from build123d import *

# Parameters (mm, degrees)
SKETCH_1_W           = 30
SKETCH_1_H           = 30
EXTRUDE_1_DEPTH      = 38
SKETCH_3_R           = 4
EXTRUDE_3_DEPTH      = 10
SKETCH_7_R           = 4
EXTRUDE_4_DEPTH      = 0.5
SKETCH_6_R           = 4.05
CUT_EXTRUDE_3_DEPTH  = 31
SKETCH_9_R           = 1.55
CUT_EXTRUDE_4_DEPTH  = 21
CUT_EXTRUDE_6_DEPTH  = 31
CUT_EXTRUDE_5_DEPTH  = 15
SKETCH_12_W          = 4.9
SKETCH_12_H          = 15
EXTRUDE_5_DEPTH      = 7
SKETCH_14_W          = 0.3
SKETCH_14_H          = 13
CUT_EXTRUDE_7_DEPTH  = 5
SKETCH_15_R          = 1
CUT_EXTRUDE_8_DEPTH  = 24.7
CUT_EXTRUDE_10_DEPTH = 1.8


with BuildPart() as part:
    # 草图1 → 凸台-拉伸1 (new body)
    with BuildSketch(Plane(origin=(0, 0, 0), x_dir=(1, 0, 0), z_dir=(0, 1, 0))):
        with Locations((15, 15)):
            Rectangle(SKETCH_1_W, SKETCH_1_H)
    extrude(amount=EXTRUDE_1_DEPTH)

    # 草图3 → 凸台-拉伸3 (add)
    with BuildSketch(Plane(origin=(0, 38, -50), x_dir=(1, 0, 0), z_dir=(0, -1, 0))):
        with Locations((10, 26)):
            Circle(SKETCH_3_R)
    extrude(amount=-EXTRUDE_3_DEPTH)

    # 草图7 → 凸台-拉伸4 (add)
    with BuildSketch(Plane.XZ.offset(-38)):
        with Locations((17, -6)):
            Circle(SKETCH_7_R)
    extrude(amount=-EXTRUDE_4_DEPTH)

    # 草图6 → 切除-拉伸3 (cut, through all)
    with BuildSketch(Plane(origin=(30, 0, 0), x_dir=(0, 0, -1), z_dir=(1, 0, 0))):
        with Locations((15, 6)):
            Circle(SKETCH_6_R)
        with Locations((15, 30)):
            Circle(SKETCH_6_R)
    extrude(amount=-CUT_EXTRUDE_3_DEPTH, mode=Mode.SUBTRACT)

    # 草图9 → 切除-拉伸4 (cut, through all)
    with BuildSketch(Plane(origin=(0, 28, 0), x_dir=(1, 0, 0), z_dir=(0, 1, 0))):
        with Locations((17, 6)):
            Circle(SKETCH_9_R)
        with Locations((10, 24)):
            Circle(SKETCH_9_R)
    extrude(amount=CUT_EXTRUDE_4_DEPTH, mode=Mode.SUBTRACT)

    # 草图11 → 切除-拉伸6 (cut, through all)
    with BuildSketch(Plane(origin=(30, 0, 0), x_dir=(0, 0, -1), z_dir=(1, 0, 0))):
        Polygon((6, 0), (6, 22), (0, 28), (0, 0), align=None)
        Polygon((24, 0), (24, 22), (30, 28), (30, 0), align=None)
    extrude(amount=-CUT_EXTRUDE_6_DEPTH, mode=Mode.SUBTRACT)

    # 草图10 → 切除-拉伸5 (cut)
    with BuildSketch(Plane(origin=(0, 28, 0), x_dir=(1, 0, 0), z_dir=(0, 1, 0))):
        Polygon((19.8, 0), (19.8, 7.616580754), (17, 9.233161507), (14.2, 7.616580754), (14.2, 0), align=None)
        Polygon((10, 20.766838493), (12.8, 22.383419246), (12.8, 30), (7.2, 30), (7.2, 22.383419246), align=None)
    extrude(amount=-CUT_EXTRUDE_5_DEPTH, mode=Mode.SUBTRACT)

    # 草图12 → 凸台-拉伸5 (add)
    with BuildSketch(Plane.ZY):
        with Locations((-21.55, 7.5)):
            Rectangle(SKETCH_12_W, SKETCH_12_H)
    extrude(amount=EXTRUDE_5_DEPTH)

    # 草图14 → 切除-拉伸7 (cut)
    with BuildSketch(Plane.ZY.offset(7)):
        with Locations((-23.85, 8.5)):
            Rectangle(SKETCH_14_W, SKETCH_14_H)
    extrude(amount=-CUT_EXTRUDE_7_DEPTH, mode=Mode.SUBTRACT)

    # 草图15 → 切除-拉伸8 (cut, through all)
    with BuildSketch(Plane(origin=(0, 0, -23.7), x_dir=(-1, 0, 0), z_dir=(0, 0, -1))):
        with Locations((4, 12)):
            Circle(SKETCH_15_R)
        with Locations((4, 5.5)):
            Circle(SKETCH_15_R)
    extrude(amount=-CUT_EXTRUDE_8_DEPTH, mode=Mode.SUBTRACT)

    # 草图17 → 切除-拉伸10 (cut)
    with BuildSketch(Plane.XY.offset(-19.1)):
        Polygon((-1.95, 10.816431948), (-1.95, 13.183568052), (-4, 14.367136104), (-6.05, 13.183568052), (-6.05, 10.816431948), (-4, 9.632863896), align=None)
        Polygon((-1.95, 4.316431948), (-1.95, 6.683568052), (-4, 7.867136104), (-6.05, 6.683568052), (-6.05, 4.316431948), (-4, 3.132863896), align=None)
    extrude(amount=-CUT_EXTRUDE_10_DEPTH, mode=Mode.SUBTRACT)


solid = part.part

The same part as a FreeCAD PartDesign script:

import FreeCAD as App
import Part
import Sketcher

V = App.Vector
Q = App.Units.Quantity


def add_polygon(sketch, points):
    """Adds a closed chain of lines whose ends are joined by coincident constraints."""
    first, n = sketch.GeometryCount, len(points)
    for a, b in zip(points, points[1:] + points[:1]):
        sketch.addGeometry(Part.LineSegment(App.Vector(*a, 0), App.Vector(*b, 0)), False)
    for i in range(n):
        sketch.addConstraint(Sketcher.Constraint("Coincident", first + i, 2, first + (i + 1) % n, 1))

doc = App.newDocument("Part")
body = doc.addObject("PartDesign::Body", "Body")

# Sketch on XZ plane
sketch1 = body.newObject("Sketcher::SketchObject", "Sketch")
sketch1.AttachmentSupport = (doc.getObject("XZ_Plane"), [""])
sketch1.MapMode = "FlatFace"
add_polygon(sketch1, [(0, -30), (0, 0), (30, 0), (30, -30)])  # lines 0-3
sketch1.addConstraint(Sketcher.Constraint("Vertical", 0))
sketch1.addConstraint(Sketcher.Constraint("Horizontal", 1))
sketch1.addConstraint(Sketcher.Constraint("Vertical", 2))
sketch1.addConstraint(Sketcher.Constraint("Horizontal", 3))
sketch1.addConstraint(Sketcher.Constraint("Coincident", 0, 2, -1, 1))
sketch1.addConstraint(Sketcher.Constraint("Equal", 3, 0))
sketch1.addConstraint(Sketcher.Constraint("DistanceX", 1, 1, 1, 2, Q("30 mm")))
pad1 = body.newObject("PartDesign::Pad", "Pad")
pad1.Profile = sketch1
pad1.Length = 38
pad1.Reversed = True

# Sketch on XZ plane
sketch2 = body.newObject("Sketcher::SketchObject", "Sketch001")
sketch2.AttachmentSupport = (doc.getObject("XZ_Plane"), [""])
sketch2.MapMode = "FlatFace"
sketch2.AttachmentOffset = App.Placement(V(0, 0, -38), App.Rotation())
sketch2.addGeometry(Part.Circle(V(10, -24, 0), V(0, 0, 1), 4), False)
sketch2.addConstraint(Sketcher.Constraint("Diameter", 0, Q("8 mm")))
sketch2.addConstraint(Sketcher.Constraint("DistanceX", -1, 1, 0, 3, Q("10 mm")))
sketch2.addConstraint(Sketcher.Constraint("DistanceY", 0, 3, -1, 1, Q("24 mm")))
pad2 = body.newObject("PartDesign::Pad", "Pad001")
pad2.Profile = sketch2
pad2.Length = 10
pad2.Reversed = True

# Sketch on XZ plane
sketch3 = body.newObject("Sketcher::SketchObject", "Sketch002")
sketch3.AttachmentSupport = (doc.getObject("XZ_Plane"), [""])
sketch3.MapMode = "FlatFace"
sketch3.AttachmentOffset = App.Placement(V(0, 0, -38), App.Rotation())
sketch3.addGeometry(Part.Circle(V(17, -6, 0), V(0, 0, 1), 4), False)
sketch3.addConstraint(Sketcher.Constraint("Diameter", 0, Q("8 mm")))
sketch3.addConstraint(Sketcher.Constraint("DistanceX", -1, 1, 0, 3, Q("17 mm")))
sketch3.addConstraint(Sketcher.Constraint("DistanceY", 0, 3, -1, 1, Q("6 mm")))
pad3 = body.newObject("PartDesign::Pad", "Pad002")
pad3.Profile = sketch3
pad3.Length = 0.5
pad3.Reversed = True

# Sketch on YZ plane
sketch4 = body.newObject("Sketcher::SketchObject", "Sketch003")
sketch4.AttachmentSupport = (doc.getObject("YZ_Plane"), [""])
sketch4.MapMode = "FlatFace"
sketch4.AttachmentOffset = App.Placement(V(0, 0, 30), App.Rotation())
sketch4.addGeometry(Part.Circle(V(6, -15, 0), V(0, 0, 1), 4.05), False)
sketch4.addGeometry(Part.Circle(V(30, -15, 0), V(0, 0, 1), 4.05), False)
sketch4.addConstraint(Sketcher.Constraint("Equal", 0, 1))
sketch4.addConstraint(Sketcher.Constraint("Horizontal", 0, 3, 1, 3))
sketch4.addConstraint(Sketcher.Constraint("Diameter", 0, Q("8.1 mm")))
sketch4.addConstraint(Sketcher.Constraint("DistanceX", -1, 1, 0, 3, Q("6 mm")))
sketch4.addConstraint(Sketcher.Constraint("DistanceY", 0, 3, -1, 1, Q("15 mm")))
sketch4.addConstraint(Sketcher.Constraint("DistanceX", -1, 1, 1, 3, Q("30 mm")))
pocket1 = body.newObject("PartDesign::Pocket", "Pocket")
pocket1.Profile = sketch4
pocket1.Type = "ThroughAll"

# Sketch on XZ plane
sketch5 = body.newObject("Sketcher::SketchObject", "Sketch004")
sketch5.AttachmentSupport = (doc.getObject("XZ_Plane"), [""])
sketch5.MapMode = "FlatFace"
sketch5.AttachmentOffset = App.Placement(V(0, 0, -28), App.Rotation())
sketch5.addGeometry(Part.Circle(V(17, -6, 0), V(0, 0, 1), 1.55), False)
sketch5.addGeometry(Part.Circle(V(10, -24, 0), V(0, 0, 1), 1.55), False)
sketch5.addConstraint(Sketcher.Constraint("Equal", 0, 1))
sketch5.addConstraint(Sketcher.Constraint("Diameter", 0, Q("3.1 mm")))
sketch5.addConstraint(Sketcher.Constraint("DistanceX", -1, 1, 0, 3, Q("17 mm")))
sketch5.addConstraint(Sketcher.Constraint("DistanceY", 0, 3, -1, 1, Q("6 mm")))
sketch5.addConstraint(Sketcher.Constraint("DistanceX", -1, 1, 1, 3, Q("10 mm")))
sketch5.addConstraint(Sketcher.Constraint("DistanceY", 1, 3, -1, 1, Q("24 mm")))
pocket2 = body.newObject("PartDesign::Pocket", "Pocket001")
pocket2.Profile = sketch5
pocket2.Type = "ThroughAll"

# Sketch on YZ plane
sketch6 = body.newObject("Sketcher::SketchObject", "Sketch005")
sketch6.AttachmentSupport = (doc.getObject("YZ_Plane"), [""])
sketch6.MapMode = "FlatFace"
sketch6.AttachmentOffset = App.Placement(V(0, 0, 30), App.Rotation())
add_polygon(sketch6, [(0, -6), (22, -6), (28, 0), (0, 0)])  # lines 0-3
add_polygon(sketch6, [(22, -24), (0, -24), (0, -30), (28, -30)])  # lines 4-7
sketch6.addConstraint(Sketcher.Constraint("Horizontal", 0))
sketch6.addConstraint(Sketcher.Constraint("Horizontal", 2))
sketch6.addConstraint(Sketcher.Constraint("Vertical", 3))
sketch6.addConstraint(Sketcher.Constraint("Horizontal", 4))
sketch6.addConstraint(Sketcher.Constraint("Vertical", 5))
sketch6.addConstraint(Sketcher.Constraint("Horizontal", 6))
sketch6.addConstraint(Sketcher.Constraint("Coincident", 2, 2, -1, 1))
sketch6.addConstraint(Sketcher.Constraint("PointOnObject", 4, 2, -2))
sketch6.addConstraint(Sketcher.Constraint("Perpendicular", 1, 7))
sketch6.addConstraint(Sketcher.Constraint("Vertical", 1, 2, 6, 2))
sketch6.addConstraint(Sketcher.Constraint("Vertical", 0, 2, 7, 2))
sketch6.addConstraint(Sketcher.Constraint("Equal", 3, 5))
sketch6.addConstraint(Sketcher.Constraint("DistanceX", 0, 1, 0, 2, Q("22 mm")))
sketch6.addConstraint(Sketcher.Constraint("DistanceX", 2, 2, 2, 1, Q("28 mm")))
sketch6.addConstraint(Sketcher.Constraint("DistanceY", 4, 2, -1, 1, Q("24 mm")))
pocket3 = body.newObject("PartDesign::Pocket", "Pocket002")
pocket3.Profile = sketch6
pocket3.Type = "ThroughAll"

# Sketch on XZ plane
sketch7 = body.newObject("Sketcher::SketchObject", "Sketch006")
sketch7.AttachmentSupport = (doc.getObject("XZ_Plane"), [""])
sketch7.MapMode = "FlatFace"
sketch7.AttachmentOffset = App.Placement(V(0, 0, -28), App.Rotation())
add_polygon(sketch7, [(19.8, 0), (19.8, -7.616581), (17, -9.233162), (14.2, -7.616581), (14.2, 0)])  # lines 0-4
add_polygon(sketch7, [(10, -20.766838), (12.8, -22.383419), (12.8, -30), (7.2, -30), (7.2, -22.383419)])  # lines 5-9
sketch7.addConstraint(Sketcher.Constraint("Vertical", 0))
sketch7.addConstraint(Sketcher.Constraint("Vertical", 3))
sketch7.addConstraint(Sketcher.Constraint("Horizontal", 4))
sketch7.addConstraint(Sketcher.Constraint("Vertical", 6))
sketch7.addConstraint(Sketcher.Constraint("Horizontal", 7))
sketch7.addConstraint(Sketcher.Constraint("Vertical", 8))
sketch7.addConstraint(Sketcher.Constraint("PointOnObject", 3, 2, -1))
sketch7.addConstraint(Sketcher.Constraint("Parallel", 2, 5))
sketch7.addConstraint(Sketcher.Constraint("Parallel", 1, 9))
sketch7.addConstraint(Sketcher.Constraint("Horizontal", 0, 2, 2, 2))
sketch7.addConstraint(Sketcher.Constraint("Horizontal", 5, 2, 8, 2))
sketch7.addConstraint(Sketcher.Constraint("Equal", 4, 7))
sketch7.addConstraint(Sketcher.Constraint("Equal", 3, 6))
sketch7.addConstraint(Sketcher.Constraint("Equal", 1, 2))
sketch7.addConstraint(Sketcher.Constraint("Angle", 1, Q("-150 deg")))
sketch7.addConstraint(Sketcher.Constraint("DistanceX", 4, 1, 4, 2, Q("5.6 mm")))
sketch7.addConstraint(Sketcher.Constraint("DistanceX", -1, 1, 1, 2, Q("17 mm")))
sketch7.addConstraint(Sketcher.Constraint("DistanceY", 6, 2, -1, 1, Q("30 mm")))
sketch7.addConstraint(Sketcher.Constraint("DistanceX", -1, 1, 9, 2, Q("10 mm")))
sketch7.addConstraint(Sketcher.Constraint("DistanceY", 0, 2, 0, 1, Q("7.616581 mm")))
pocket4 = body.newObject("PartDesign::Pocket", "Pocket003")
pocket4.Profile = sketch7
pocket4.Length = 15
pocket4.Reversed = True

# Sketch on YZ plane
sketch8 = body.newObject("Sketcher::SketchObject", "Sketch007")
sketch8.AttachmentSupport = (doc.getObject("YZ_Plane"), [""])
sketch8.MapMode = "FlatFace"
add_polygon(sketch8, [(15, -24), (0, -24), (0, -19.1), (15, -19.1)])  # lines 0-3
sketch8.addConstraint(Sketcher.Constraint("Horizontal", 0))
sketch8.addConstraint(Sketcher.Constraint("Vertical", 1))
sketch8.addConstraint(Sketcher.Constraint("Horizontal", 2))
sketch8.addConstraint(Sketcher.Constraint("Vertical", 3))
sketch8.addConstraint(Sketcher.Constraint("PointOnObject", 0, 2, -2))
sketch8.addConstraint(Sketcher.Constraint("DistanceX", 0, 2, 0, 1, Q("15 mm")))
sketch8.addConstraint(Sketcher.Constraint("DistanceY", 1, 1, 1, 2, Q("4.9 mm")))
sketch8.addConstraint(Sketcher.Constraint("DistanceY", 0, 2, -1, 1, Q("24 mm")))
pad4 = body.newObject("PartDesign::Pad", "Pad003")
pad4.Profile = sketch8
pad4.Length = 7
pad4.Reversed = True

# Sketch on YZ plane
sketch9 = body.newObject("Sketcher::SketchObject", "Sketch008")
sketch9.AttachmentSupport = (doc.getObject("YZ_Plane"), [""])
sketch9.MapMode = "FlatFace"
sketch9.AttachmentOffset = App.Placement(V(0, 0, -7), App.Rotation())
add_polygon(sketch9, [(15, -24), (2, -24), (2, -23.7), (15, -23.7)])  # lines 0-3
sketch9.addConstraint(Sketcher.Constraint("Horizontal", 0))
sketch9.addConstraint(Sketcher.Constraint("Vertical", 1))
sketch9.addConstraint(Sketcher.Constraint("Horizontal", 2))
sketch9.addConstraint(Sketcher.Constraint("Vertical", 3))
sketch9.addConstraint(Sketcher.Constraint("DistanceX", 0, 2, 0, 1, Q("13 mm")))
sketch9.addConstraint(Sketcher.Constraint("DistanceY", 1, 1, 1, 2, Q("0.3 mm")))
sketch9.addConstraint(Sketcher.Constraint("DistanceX", -1, 1, 0, 2, Q("2 mm")))
sketch9.addConstraint(Sketcher.Constraint("DistanceY", 0, 2, -1, 1, Q("24 mm")))
pocket5 = body.newObject("PartDesign::Pocket", "Pocket004")
pocket5.Profile = sketch9
pocket5.Length = 5
pocket5.Reversed = True

# Sketch on XY plane
sketch10 = body.newObject("Sketcher::SketchObject", "Sketch009")
sketch10.AttachmentSupport = (doc.getObject("XY_Plane"), [""])
sketch10.MapMode = "FlatFace"
sketch10.AttachmentOffset = App.Placement(V(0, 0, -23.7), App.Rotation())
sketch10.addGeometry(Part.Circle(V(-4, 12, 0), V(0, 0, 1), 1), False)
sketch10.addGeometry(Part.Circle(V(-4, 5.5, 0), V(0, 0, 1), 1), False)
sketch10.addConstraint(Sketcher.Constraint("Equal", 0, 1))
sketch10.addConstraint(Sketcher.Constraint("Vertical", 0, 3, 1, 3))
sketch10.addConstraint(Sketcher.Constraint("Diameter", 0, Q("2 mm")))
sketch10.addConstraint(Sketcher.Constraint("DistanceX", 0, 3, -1, 1, Q("4 mm")))
sketch10.addConstraint(Sketcher.Constraint("DistanceY", -1, 1, 0, 3, Q("12 mm")))
sketch10.addConstraint(Sketcher.Constraint("DistanceY", -1, 1, 1, 3, Q("5.5 mm")))
pocket6 = body.newObject("PartDesign::Pocket", "Pocket005")
pocket6.Profile = sketch10
pocket6.Type = "ThroughAll"
pocket6.Reversed = True

# Sketch on XY plane
sketch11 = body.newObject("Sketcher::SketchObject", "Sketch010")
sketch11.AttachmentSupport = (doc.getObject("XY_Plane"), [""])
sketch11.MapMode = "FlatFace"
sketch11.AttachmentOffset = App.Placement(V(0, 0, -19.1), App.Rotation())
add_polygon(sketch11, [(-1.95, 10.816432), (-1.95, 13.183568), (-4, 14.367136), (-6.05, 13.183568), (-6.05, 10.816432), (-4, 9.632864)])  # lines 0-5
add_polygon(sketch11, [(-1.95, 4.316432), (-1.95, 6.683568), (-4, 7.867136), (-6.05, 6.683568), (-6.05, 4.316432), (-4, 3.132864)])  # lines 6-11
sketch11.addConstraint(Sketcher.Constraint("Vertical", 0))
sketch11.addConstraint(Sketcher.Constraint("Vertical", 3))
sketch11.addConstraint(Sketcher.Constraint("Vertical", 6))
sketch11.addConstraint(Sketcher.Constraint("Vertical", 9))
sketch11.addConstraint(Sketcher.Constraint("Parallel", 1, 4))
sketch11.addConstraint(Sketcher.Constraint("Parallel", 2, 5))
sketch11.addConstraint(Sketcher.Constraint("Parallel", 4, 7))
sketch11.addConstraint(Sketcher.Constraint("Parallel", 5, 8))
sketch11.addConstraint(Sketcher.Constraint("Parallel", 7, 10))
sketch11.addConstraint(Sketcher.Constraint("Parallel", 8, 11))
sketch11.addConstraint(Sketcher.Constraint("Horizontal", 0, 2, 2, 2))
sketch11.addConstraint(Sketcher.Constraint("Horizontal", 3, 2, 5, 2))
sketch11.addConstraint(Sketcher.Constraint("Horizontal", 6, 2, 8, 2))
sketch11.addConstraint(Sketcher.Constraint("Horizontal", 9, 2, 11, 2))
sketch11.addConstraint(Sketcher.Constraint("Vertical", 1, 2, 4, 2))
sketch11.addConstraint(Sketcher.Constraint("Vertical", 5, 2, 6, 2))
sketch11.addConstraint(Sketcher.Constraint("Vertical", 4, 2, 7, 2))
sketch11.addConstraint(Sketcher.Constraint("Equal", 3, 6))
sketch11.addConstraint(Sketcher.Constraint("Angle", 1, Q("150 deg")))
sketch11.addConstraint(Sketcher.Constraint("DistanceX", 1, 2, -1, 1, Q("4 mm")))
sketch11.addConstraint(Sketcher.Constraint("DistanceX", 2, 2, 0, 2, Q("4.1 mm")))
sketch11.addConstraint(Sketcher.Constraint("DistanceY", 6, 2, 0, 2, Q("6.5 mm")))
sketch11.addConstraint(Sketcher.Constraint("DistanceY", 0, 1, 0, 2, Q("2.367136 mm")))
sketch11.addConstraint(Sketcher.Constraint("DistanceY", -1, 1, 0, 2, Q("13.183568 mm")))
pocket7 = body.newObject("PartDesign::Pocket", "Pocket006")
pocket7.Profile = sketch11
pocket7.Length = 1.8

doc.recompute()
